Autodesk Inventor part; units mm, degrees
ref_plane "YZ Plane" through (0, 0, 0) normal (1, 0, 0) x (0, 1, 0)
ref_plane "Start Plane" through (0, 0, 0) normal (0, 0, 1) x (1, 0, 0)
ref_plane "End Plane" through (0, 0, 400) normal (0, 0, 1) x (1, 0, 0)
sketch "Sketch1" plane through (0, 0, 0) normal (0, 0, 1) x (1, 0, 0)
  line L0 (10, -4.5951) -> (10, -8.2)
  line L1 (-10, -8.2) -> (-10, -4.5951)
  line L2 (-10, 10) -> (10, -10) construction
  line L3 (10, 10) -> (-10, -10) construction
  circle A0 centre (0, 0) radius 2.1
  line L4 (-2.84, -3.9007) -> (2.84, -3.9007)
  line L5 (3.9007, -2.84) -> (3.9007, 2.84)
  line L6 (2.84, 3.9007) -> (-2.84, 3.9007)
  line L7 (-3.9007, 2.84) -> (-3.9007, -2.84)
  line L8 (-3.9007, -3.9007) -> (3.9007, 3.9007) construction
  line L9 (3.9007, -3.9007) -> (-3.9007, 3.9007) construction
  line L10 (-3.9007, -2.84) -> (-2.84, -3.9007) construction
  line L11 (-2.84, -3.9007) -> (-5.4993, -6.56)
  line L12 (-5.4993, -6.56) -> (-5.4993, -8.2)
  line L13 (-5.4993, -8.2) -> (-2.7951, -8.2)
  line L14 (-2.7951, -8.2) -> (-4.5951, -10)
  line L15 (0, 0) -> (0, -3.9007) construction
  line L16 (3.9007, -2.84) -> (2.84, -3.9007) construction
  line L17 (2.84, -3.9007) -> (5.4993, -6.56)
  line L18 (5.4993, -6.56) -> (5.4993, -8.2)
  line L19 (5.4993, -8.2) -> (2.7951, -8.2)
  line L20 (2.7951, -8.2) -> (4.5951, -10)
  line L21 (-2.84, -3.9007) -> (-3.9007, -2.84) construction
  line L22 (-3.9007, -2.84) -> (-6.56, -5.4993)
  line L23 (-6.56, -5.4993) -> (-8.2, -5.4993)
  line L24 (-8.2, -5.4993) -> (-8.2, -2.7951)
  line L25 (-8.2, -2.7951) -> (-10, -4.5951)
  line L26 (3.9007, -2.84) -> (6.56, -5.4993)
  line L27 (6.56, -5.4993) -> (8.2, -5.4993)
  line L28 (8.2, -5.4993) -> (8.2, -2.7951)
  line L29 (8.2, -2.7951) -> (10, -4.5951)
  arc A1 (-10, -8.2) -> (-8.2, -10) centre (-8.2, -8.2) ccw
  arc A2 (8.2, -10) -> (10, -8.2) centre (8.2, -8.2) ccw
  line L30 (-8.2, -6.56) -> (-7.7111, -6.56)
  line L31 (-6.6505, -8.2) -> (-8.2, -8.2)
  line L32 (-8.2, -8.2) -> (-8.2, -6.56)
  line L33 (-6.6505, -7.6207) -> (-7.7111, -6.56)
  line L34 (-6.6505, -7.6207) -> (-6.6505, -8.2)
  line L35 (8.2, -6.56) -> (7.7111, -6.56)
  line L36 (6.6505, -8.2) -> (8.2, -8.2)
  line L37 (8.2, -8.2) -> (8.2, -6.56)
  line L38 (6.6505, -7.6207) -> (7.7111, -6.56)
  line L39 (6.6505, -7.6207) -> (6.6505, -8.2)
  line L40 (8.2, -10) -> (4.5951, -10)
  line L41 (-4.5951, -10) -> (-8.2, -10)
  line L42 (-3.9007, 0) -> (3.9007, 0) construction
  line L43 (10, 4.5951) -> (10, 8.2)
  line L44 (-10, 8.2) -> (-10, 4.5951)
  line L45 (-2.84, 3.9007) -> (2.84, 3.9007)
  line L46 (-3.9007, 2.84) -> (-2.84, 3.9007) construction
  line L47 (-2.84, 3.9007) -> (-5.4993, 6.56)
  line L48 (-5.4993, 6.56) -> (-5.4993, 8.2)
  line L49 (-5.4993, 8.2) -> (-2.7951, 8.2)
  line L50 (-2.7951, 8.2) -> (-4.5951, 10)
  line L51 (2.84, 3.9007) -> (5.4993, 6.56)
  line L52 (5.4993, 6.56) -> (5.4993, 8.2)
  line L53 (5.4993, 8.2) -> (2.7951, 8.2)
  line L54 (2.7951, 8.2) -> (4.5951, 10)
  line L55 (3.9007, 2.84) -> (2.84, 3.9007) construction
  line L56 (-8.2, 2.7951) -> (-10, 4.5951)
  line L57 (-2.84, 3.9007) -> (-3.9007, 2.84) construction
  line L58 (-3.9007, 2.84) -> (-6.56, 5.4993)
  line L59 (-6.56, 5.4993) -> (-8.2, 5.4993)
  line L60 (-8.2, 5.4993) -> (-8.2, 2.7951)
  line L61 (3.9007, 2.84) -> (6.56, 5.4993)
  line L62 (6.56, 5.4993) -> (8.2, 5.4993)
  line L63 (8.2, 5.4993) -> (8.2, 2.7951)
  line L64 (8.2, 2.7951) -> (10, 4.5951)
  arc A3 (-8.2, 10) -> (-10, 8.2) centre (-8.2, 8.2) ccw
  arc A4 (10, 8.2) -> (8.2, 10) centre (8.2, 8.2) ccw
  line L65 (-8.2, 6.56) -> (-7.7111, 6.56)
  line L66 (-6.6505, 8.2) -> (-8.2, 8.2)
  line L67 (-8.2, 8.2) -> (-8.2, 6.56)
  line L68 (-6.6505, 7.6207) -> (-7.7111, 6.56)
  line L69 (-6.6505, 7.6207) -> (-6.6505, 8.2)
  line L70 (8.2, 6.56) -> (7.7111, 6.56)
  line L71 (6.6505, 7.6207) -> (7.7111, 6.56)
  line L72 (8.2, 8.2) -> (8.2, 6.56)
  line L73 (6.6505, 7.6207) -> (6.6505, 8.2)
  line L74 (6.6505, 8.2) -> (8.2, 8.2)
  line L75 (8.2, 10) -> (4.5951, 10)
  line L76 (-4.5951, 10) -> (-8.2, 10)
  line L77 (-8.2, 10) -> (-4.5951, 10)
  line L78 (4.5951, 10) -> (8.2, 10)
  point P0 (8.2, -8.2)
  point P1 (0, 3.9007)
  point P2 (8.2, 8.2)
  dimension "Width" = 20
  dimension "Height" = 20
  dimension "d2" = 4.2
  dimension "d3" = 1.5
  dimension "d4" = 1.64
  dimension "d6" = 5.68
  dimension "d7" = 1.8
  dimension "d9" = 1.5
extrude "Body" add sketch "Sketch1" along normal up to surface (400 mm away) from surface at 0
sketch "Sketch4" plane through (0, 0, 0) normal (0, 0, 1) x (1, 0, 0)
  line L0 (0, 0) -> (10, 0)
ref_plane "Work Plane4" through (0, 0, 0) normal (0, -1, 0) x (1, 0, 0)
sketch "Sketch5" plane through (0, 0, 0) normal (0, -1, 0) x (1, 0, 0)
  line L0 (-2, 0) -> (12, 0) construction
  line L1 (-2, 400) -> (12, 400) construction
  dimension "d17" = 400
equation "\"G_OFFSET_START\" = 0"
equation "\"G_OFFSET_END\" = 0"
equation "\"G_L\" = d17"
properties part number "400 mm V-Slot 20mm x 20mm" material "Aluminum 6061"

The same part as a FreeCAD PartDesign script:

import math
import FreeCAD as App
import Part
import Sketcher
Q = App.Units.Quantity

doc = App.newDocument("Part")
body = doc.addObject("PartDesign::Body", "Body")

# Sketch on XY plane
sketch1 = body.newObject("Sketcher::SketchObject", "Sketch")
sketch1.AttachmentSupport = (doc.getObject("XY_Plane"), [""])
sketch1.MapMode = "FlatFace"
sketch1.addGeometry([
    Part.LineSegment(App.Vector(10, -8.2, 0), App.Vector(10, -4.6, 0)),  # 0
    Part.LineSegment(App.Vector(10, -4.6, 0), App.Vector(8.2, -2.8, 0)),  # 1
    Part.LineSegment(App.Vector(8.2, -2.8, 0), App.Vector(8.2, -5.5, 0)),  # 2
    Part.LineSegment(App.Vector(8.2, -5.5, 0), App.Vector(6.56, -5.5, 0)),  # 3
    Part.LineSegment(App.Vector(6.56, -5.5, 0), App.Vector(3.9, -2.84, 0)),  # 4
    Part.LineSegment(App.Vector(3.9, -2.84, 0), App.Vector(3.9, 2.84, 0)),  # 5
    Part.LineSegment(App.Vector(3.9, 2.84, 0), App.Vector(6.56, 5.5, 0)),  # 6
    Part.LineSegment(App.Vector(6.56, 5.5, 0), App.Vector(8.2, 5.5, 0)),  # 7
    Part.LineSegment(App.Vector(8.2, 5.5, 0), App.Vector(8.2, 2.8, 0)),  # 8
    Part.LineSegment(App.Vector(8.2, 2.8, 0), App.Vector(10, 4.6, 0)),  # 9
    Part.LineSegment(App.Vector(10, 4.6, 0), App.Vector(10, 8.2, 0)),  # 10
    Part.ArcOfCircle(Part.Circle(App.Vector(8.2, 8.2, 0), App.Vector(0, 0, 1), 1.8), math.radians(0), math.radians(90)),  # 11
    Part.LineSegment(App.Vector(8.2, 10, 0), App.Vector(4.6, 10, 0)),  # 12
    Part.LineSegment(App.Vector(4.6, 10, 0), App.Vector(2.8, 8.2, 0)),  # 13
    Part.LineSegment(App.Vector(2.8, 8.2, 0), App.Vector(5.5, 8.2, 0)),  # 14
    Part.LineSegment(App.Vector(5.5, 8.2, 0), App.Vector(5.5, 6.56, 0)),  # 15
    Part.LineSegment(App.Vector(5.5, 6.56, 0), App.Vector(2.84, 3.9, 0)),  # 16
    Part.LineSegment(App.Vector(2.84, 3.9, 0), App.Vector(-2.84, 3.9, 0)),  # 17
    Part.LineSegment(App.Vector(-2.84, 3.9, 0), App.Vector(-5.5, 6.56, 0)),  # 18
    Part.LineSegment(App.Vector(-5.5, 6.56, 0), App.Vector(-5.5, 8.2, 0)),  # 19
    Part.LineSegment(App.Vector(-5.5, 8.2, 0), App.Vector(-2.8, 8.2, 0)),  # 20
    Part.LineSegment(App.Vector(-2.8, 8.2, 0), App.Vector(-4.6, 10, 0)),  # 21
    Part.LineSegment(App.Vector(-4.6, 10, 0), App.Vector(-8.2, 10, 0)),  # 22
    Part.ArcOfCircle(Part.Circle(App.Vector(-8.2, 8.2, 0), App.Vector(0, 0, 1), 1.8), math.radians(90), math.radians(180)),  # 23
    Part.LineSegment(App.Vector(-10, 8.2, 0), App.Vector(-10, 4.6, 0)),  # 24
    Part.LineSegment(App.Vector(-10, 4.6, 0), App.Vector(-8.2, 2.8, 0)),  # 25
    Part.LineSegment(App.Vector(-8.2, 2.8, 0), App.Vector(-8.2, 5.5, 0)),  # 26
    Part.LineSegment(App.Vector(-8.2, 5.5, 0), App.Vector(-6.56, 5.5, 0)),  # 27
    Part.LineSegment(App.Vector(-6.56, 5.5, 0), App.Vector(-3.9, 2.84, 0)),  # 28
    Part.LineSegment(App.Vector(-3.9, 2.84, 0), App.Vector(-3.9, -2.84, 0)),  # 29
    Part.LineSegment(App.Vector(-3.9, -2.84, 0), App.Vector(-6.56, -5.5, 0)),  # 30
    Part.LineSegment(App.Vector(-6.56, -5.5, 0), App.Vector(-8.2, -5.5, 0)),  # 31
    Part.LineSegment(App.Vector(-8.2, -5.5, 0), App.Vector(-8.2, -2.8, 0)),  # 32
    Part.LineSegment(App.Vector(-8.2, -2.8, 0), App.Vector(-10, -4.6, 0)),  # 33
    Part.LineSegment(App.Vector(-10, -4.6, 0), App.Vector(-10, -8.2, 0)),  # 34
    Part.ArcOfCircle(Part.Circle(App.Vector(-8.2, -8.2, 0), App.Vector(0, 0, 1), 1.8), math.radians(180), math.radians(270)),  # 35
    Part.LineSegment(App.Vector(-8.2, -10, 0), App.Vector(-4.6, -10, 0)),  # 36
    Part.LineSegment(App.Vector(-4.6, -10, 0), App.Vector(-2.8, -8.2, 0)),  # 37
    Part.LineSegment(App.Vector(-2.8, -8.2, 0), App.Vector(-5.5, -8.2, 0)),  # 38
    Part.LineSegment(App.Vector(-5.5, -8.2, 0), App.Vector(-5.5, -6.56, 0)),  # 39
    Part.LineSegment(App.Vector(-5.5, -6.56, 0), App.Vector(-2.84, -3.9, 0)),  # 40
    Part.LineSegment(App.Vector(-2.84, -3.9, 0), App.Vector(2.84, -3.9, 0)),  # 41
    Part.LineSegment(App.Vector(2.84, -3.9, 0), App.Vector(5.5, -6.56, 0)),  # 42
    Part.LineSegment(App.Vector(5.5, -6.56, 0), App.Vector(5.5, -8.2, 0)),  # 43
    Part.LineSegment(App.Vector(5.5, -8.2, 0), App.Vector(2.8, -8.2, 0)),  # 44
    Part.LineSegment(App.Vector(2.8, -8.2, 0), App.Vector(4.6, -10, 0)),  # 45
    Part.LineSegment(App.Vector(4.6, -10, 0), App.Vector(8.2, -10, 0)),  # 46
    Part.ArcOfCircle(Part.Circle(App.Vector(8.2, -8.2, 0), App.Vector(0, 0, 1), 1.8), math.radians(-90), math.radians(0)),  # 47
    Part.LineSegment(App.Vector(-8.2, -8.2, 0), App.Vector(-8.2, -6.56, 0)),  # 48
    Part.LineSegment(App.Vector(-8.2, -6.56, 0), App.Vector(-7.71, -6.56, 0)),  # 49
    Part.LineSegment(App.Vector(-7.71, -6.56, 0), App.Vector(-6.65, -7.62, 0)),  # 50
    Part.LineSegment(App.Vector(-6.65, -7.62, 0), App.Vector(-6.65, -8.2, 0)),  # 51
    Part.LineSegment(App.Vector(-6.65, -8.2, 0), App.Vector(-8.2, -8.2, 0)),  # 52
    Part.LineSegment(App.Vector(7.71, -6.56, 0), App.Vector(8.2, -6.56, 0)),  # 53
    Part.LineSegment(App.Vector(8.2, -6.56, 0), App.Vector(8.2, -8.2, 0)),  # 54
    Part.LineSegment(App.Vector(8.2, -8.2, 0), App.Vector(6.65, -8.2, 0)),  # 55
    Part.LineSegment(App.Vector(6.65, -8.2, 0), App.Vector(6.65, -7.62, 0)),  # 56
    Part.LineSegment(App.Vector(6.65, -7.62, 0), App.Vector(7.71, -6.56, 0)),  # 57
    Part.LineSegment(App.Vector(-7.71, 6.56, 0), App.Vector(-8.2, 6.56, 0)),  # 58
    Part.LineSegment(App.Vector(-8.2, 6.56, 0), App.Vector(-8.2, 8.2, 0)),  # 59
    Part.LineSegment(App.Vector(-8.2, 8.2, 0), App.Vector(-6.65, 8.2, 0)),  # 60
    Part.LineSegment(App.Vector(-6.65, 8.2, 0), App.Vector(-6.65, 7.62, 0)),  # 61
    Part.LineSegment(App.Vector(-6.65, 7.62, 0), App.Vector(-7.71, 6.56, 0)),  # 62
    Part.Circle(App.Vector(0, 0, 0), App.Vector(0, 0, 1), 2.1),  # 63
    Part.LineSegment(App.Vector(8.2, 8.2, 0), App.Vector(8.2, 6.56, 0)),  # 64
    Part.LineSegment(App.Vector(8.2, 6.56, 0), App.Vector(7.71, 6.56, 0)),  # 65
    Part.LineSegment(App.Vector(7.71, 6.56, 0), App.Vector(6.65, 7.62, 0)),  # 66
    Part.LineSegment(App.Vector(6.65, 7.62, 0), App.Vector(6.65, 8.2, 0)),  # 67
    Part.LineSegment(App.Vector(6.65, 8.2, 0), App.Vector(8.2, 8.2, 0)),  # 68
], False)
sketch1.addConstraint([
    Sketcher.Constraint("Coincident", 0, 2, 1, 1),
    Sketcher.Constraint("Coincident", 1, 2, 2, 1),
    Sketcher.Constraint("Coincident", 2, 2, 3, 1),
    Sketcher.Constraint("Coincident", 3, 2, 4, 1),
    Sketcher.Constraint("Coincident", 4, 2, 5, 1),
    Sketcher.Constraint("Coincident", 5, 2, 6, 1),
    Sketcher.Constraint("Coincident", 6, 2, 7, 1),
    Sketcher.Constraint("Coincident", 7, 2, 8, 1),
    Sketcher.Constraint("Coincident", 8, 2, 9, 1),
    Sketcher.Constraint("Coincident", 9, 2, 10, 1),
    Sketcher.Constraint("Tangent", 10, 2, 11, 1),
    Sketcher.Constraint("Tangent", 11, 2, 12, 1),
    Sketcher.Constraint("Coincident", 12, 2, 13, 1),
    Sketcher.Constraint("Coincident", 13, 2, 14, 1),
    Sketcher.Constraint("Coincident", 14, 2, 15, 1),
    Sketcher.Constraint("Coincident", 15, 2, 16, 1),
    Sketcher.Constraint("Coincident", 16, 2, 17, 1),
    Sketcher.Constraint("Coincident", 17, 2, 18, 1),
    Sketcher.Constraint("Coincident", 18, 2, 19, 1),
    Sketcher.Constraint("Coincident", 19, 2, 20, 1),
    Sketcher.Constraint("Coincident", 20, 2, 21, 1),
    Sketcher.Constraint("Coincident", 21, 2, 22, 1),
    Sketcher.Constraint("Tangent", 22, 2, 23, 1),
    Sketcher.Constraint("Tangent", 23, 2, 24, 1),
    Sketcher.Constraint("Coincident", 24, 2, 25, 1),
    Sketcher.Constraint("Coincident", 25, 2, 26, 1),
    Sketcher.Constraint("Coincident", 26, 2, 27, 1),
    Sketcher.Constraint("Coincident", 27, 2, 28, 1),
    Sketcher.Constraint("Coincident", 28, 2, 29, 1),
    Sketcher.Constraint("Coincident", 29, 2, 30, 1),
    Sketcher.Constraint("Coincident", 30, 2, 31, 1),
    Sketcher.Constraint("Coincident", 31, 2, 32, 1),
    Sketcher.Constraint("Coincident", 32, 2, 33, 1),
    Sketcher.Constraint("Coincident", 33, 2, 34, 1),
    Sketcher.Constraint("Tangent", 34, 2, 35, 1),
    Sketcher.Constraint("Tangent", 35, 2, 36, 1),
    Sketcher.Constraint("Coincident", 36, 2, 37, 1),
    Sketcher.Constraint("Coincident", 37, 2, 38, 1),
    Sketcher.Constraint("Coincident", 38, 2, 39, 1),
    Sketcher.Constraint("Coincident", 39, 2, 40, 1),
    Sketcher.Constraint("Coincident", 40, 2, 41, 1),
    Sketcher.Constraint("Coincident", 41, 2, 42, 1),
    Sketcher.Constraint("Coincident", 42, 2, 43, 1),
    Sketcher.Constraint("Coincident", 43, 2, 44, 1),
    Sketcher.Constraint("Coincident", 44, 2, 45, 1),
    Sketcher.Constraint("Coincident", 45, 2, 46, 1),
    Sketcher.Constraint("Tangent", 46, 2, 47, 1),
    Sketcher.Constraint("Tangent", 47, 2, 0, 1),
    Sketcher.Constraint("Coincident", 48, 2, 49, 1),
    Sketcher.Constraint("Coincident", 49, 2, 50, 1),
    Sketcher.Constraint("Coincident", 50, 2, 51, 1),
    Sketcher.Constraint("Coincident", 51, 2, 52, 1),
    Sketcher.Constraint("Coincident", 52, 2, 48, 1),
    Sketcher.Constraint("Coincident", 53, 2, 54, 1),
    Sketcher.Constraint("Coincident", 54, 2, 55, 1),
    Sketcher.Constraint("Coincident", 55, 2, 56, 1),
    Sketcher.Constraint("Coincident", 56, 2, 57, 1),
    Sketcher.Constraint("Coincident", 57, 2, 53, 1),
    Sketcher.Constraint("Coincident", 58, 2, 59, 1),
    Sketcher.Constraint("Coincident", 59, 2, 60, 1),
    Sketcher.Constraint("Coincident", 60, 2, 61, 1),
    Sketcher.Constraint("Coincident", 61, 2, 62, 1),
    Sketcher.Constraint("Coincident", 62, 2, 58, 1),
    Sketcher.Constraint("Coincident", 64, 2, 65, 1),
    Sketcher.Constraint("Coincident", 65, 2, 66, 1),
    Sketcher.Constraint("Coincident", 66, 2, 67, 1),
    Sketcher.Constraint("Coincident", 67, 2, 68, 1),
    Sketcher.Constraint("Coincident", 68, 2, 64, 1),
    Sketcher.Constraint("Vertical", 0),
    Sketcher.Constraint("Vertical", 2),
    Sketcher.Constraint("Horizontal", 3),
    Sketcher.Constraint("Vertical", 5),
    Sketcher.Constraint("Horizontal", 7),
    Sketcher.Constraint("Vertical", 8),
    Sketcher.Constraint("Vertical", 10),
    Sketcher.Constraint("Horizontal", 12),
    Sketcher.Constraint("Horizontal", 14),
    Sketcher.Constraint("Vertical", 15),
    Sketcher.Constraint("Horizontal", 17),
    Sketcher.Constraint("Vertical", 19),
    Sketcher.Constraint("Horizontal", 20),
    Sketcher.Constraint("Horizontal", 22),
    Sketcher.Constraint("Vertical", 24),
    Sketcher.Constraint("Vertical", 26),
    Sketcher.Constraint("Horizontal", 27),
    Sketcher.Constraint("Vertical", 29),
    Sketcher.Constraint("Horizontal", 31),
    Sketcher.Constraint("Vertical", 32),
    Sketcher.Constraint("Vertical", 34),
    Sketcher.Constraint("Horizontal", 36),
    Sketcher.Constraint("Horizontal", 38),
    Sketcher.Constraint("Vertical", 39),
    Sketcher.Constraint("Horizontal", 41),
    Sketcher.Constraint("Vertical", 43),
    Sketcher.Constraint("Horizontal", 44),
    Sketcher.Constraint("Horizontal", 46),
    Sketcher.Constraint("Vertical", 48),
    Sketcher.Constraint("Horizontal", 49),
    Sketcher.Constraint("Vertical", 51),
    Sketcher.Constraint("Horizontal", 52),
    Sketcher.Constraint("Horizontal", 53),
    Sketcher.Constraint("Vertical", 54),
    Sketcher.Constraint("Horizontal", 55),
    Sketcher.Constraint("Vertical", 56),
    Sketcher.Constraint("Horizontal", 58),
    Sketcher.Constraint("Vertical", 59),
    Sketcher.Constraint("Horizontal", 60),
    Sketcher.Constraint("Vertical", 61),
    Sketcher.Constraint("Vertical", 64),
    Sketcher.Constraint("Horizontal", 65),
    Sketcher.Constraint("Vertical", 67),
    Sketcher.Constraint("Horizontal", 68),
    Sketcher.Constraint("Coincident", 63, 3, -1, 1),
    Sketcher.Constraint("Coincident", 52, 2, 35, 3),
    Sketcher.Constraint("Coincident", 54, 2, 47, 3),
    Sketcher.Constraint("Coincident", 59, 2, 23, 3),
    Sketcher.Constraint("Coincident", 68, 2, 11, 3),
    Sketcher.Constraint("Equal", 11, 23),
    Sketcher.Constraint("Equal", 23, 35),
    Sketcher.Constraint("Equal", 35, 47),
    Sketcher.Constraint("Symmetric", 11, 3, 35, 3, -1, 1),
    Sketcher.Constraint("Symmetric", 23, 3, 47, 3, -1, 1),
    Sketcher.Constraint("Symmetric", 1, 2, 25, 2, -1, 1),
    Sketcher.Constraint("Symmetric", 3, 2, 27, 2, -1, 1),
    Sketcher.Constraint("Symmetric", 4, 2, 28, 2, -1, 1),
    Sketcher.Constraint("Symmetric", 6, 2, 30, 2, -1, 1),
    Sketcher.Constraint("Symmetric", 8, 2, 32, 2, -1, 1),
    Sketcher.Constraint("Symmetric", 13, 2, 37, 2, -1, 1),
    Sketcher.Constraint("Symmetric", 15, 2, 39, 2, -1, 1),
    Sketcher.Constraint("Symmetric", 16, 2, 40, 2, -1, 1),
    Sketcher.Constraint("Symmetric", 18, 2, 42, 2, -1, 1),
    Sketcher.Constraint("Symmetric", 20, 2, 44, 2, -1, 1),
    Sketcher.Constraint("Symmetric", 56, 2, 61, 2, -1, 1),
    Sketcher.Constraint("Symmetric", 57, 2, 62, 2, -1, 1),
    Sketcher.Constraint("Symmetric", 49, 2, 65, 2, -1, 1),
    Sketcher.Constraint("Symmetric", 50, 2, 66, 2, -1, 1),
    Sketcher.Constraint("Symmetric", 11, 3, 23, 3, -2),
    Sketcher.Constraint("Symmetric", 15, 2, 18, 2, -2),
    Sketcher.Constraint("Symmetric", 13, 2, 20, 2, -2),
    Sketcher.Constraint("Symmetric", 8, 2, 25, 2, -2),
    Sketcher.Constraint("Symmetric", 6, 2, 27, 2, -2),
    Sketcher.Constraint("Symmetric", 50, 2, 56, 2, -2),
    Sketcher.Constraint("Symmetric", 49, 2, 57, 2, -2),
    Sketcher.Constraint("Parallel", 1, 4),
    Sketcher.Constraint("Perpendicular", 4, 6),
    Sketcher.Constraint("Parallel", 6, 9),
    Sketcher.Constraint("Parallel", 9, 13),
    Sketcher.Constraint("Parallel", 13, 16),
    Sketcher.Constraint("Perpendicular", 16, 18),
    Sketcher.Constraint("Parallel", 18, 21),
    Sketcher.Constraint("Parallel", 21, 25),
    Sketcher.Constraint("Perpendicular", 28, 30),
    Sketcher.Constraint("Parallel", 30, 33),
    Sketcher.Constraint("Parallel", 33, 37),
    Sketcher.Constraint("Perpendicular", 40, 42),
    Sketcher.Constraint("Parallel", 42, 45),
    Sketcher.Constraint("Parallel", 45, 50),
    Sketcher.Constraint("Perpendicular", 50, 57),
    Sketcher.Constraint("Horizontal", 10, 2, 13, 2),
    Sketcher.Constraint("Horizontal", 42, 2, 48, 2),
    Sketcher.Constraint("Vertical", 47, 3, 1, 2),
    Sketcher.Constraint("Equal", 46, 0),
    Sketcher.Constraint("Equal", 44, 2),
    Sketcher.Constraint("Equal", 41, 5),
    Sketcher.Constraint("Equal", 31, 15),
    Sketcher.Constraint("Equal", 6, 16),
    Sketcher.Constraint("Diameter", 63, Q("4.2 mm")),
    Sketcher.Constraint("Radius", 11, Q("1.8 mm")),
    Sketcher.Constraint("Distance", 50, Q("1.5 mm")),
    Sketcher.Constraint("DistanceX", 3, 2, 3, 1, Q("1.64 mm")),
    Sketcher.Constraint("DistanceX", 17, 2, 17, 1, Q("5.68 mm")),
    Sketcher.Constraint("DistanceX", -1, 1, 0, 2, Q("10 mm")),
    Sketcher.Constraint("DistanceX", 12, 2, 12, 1, Q("3.605 mm")),
    Sketcher.Constraint("DistanceX", 49, 1, 49, 2, Q("0.489 mm")),
    Sketcher.Constraint("DistanceX", 14, 1, 14, 2, Q("2.7042 mm")),
])
pad1 = body.newObject("PartDesign::Pad", "Pad")
pad1.Profile = sketch1
pad1.Length = 400

doc.recompute()
